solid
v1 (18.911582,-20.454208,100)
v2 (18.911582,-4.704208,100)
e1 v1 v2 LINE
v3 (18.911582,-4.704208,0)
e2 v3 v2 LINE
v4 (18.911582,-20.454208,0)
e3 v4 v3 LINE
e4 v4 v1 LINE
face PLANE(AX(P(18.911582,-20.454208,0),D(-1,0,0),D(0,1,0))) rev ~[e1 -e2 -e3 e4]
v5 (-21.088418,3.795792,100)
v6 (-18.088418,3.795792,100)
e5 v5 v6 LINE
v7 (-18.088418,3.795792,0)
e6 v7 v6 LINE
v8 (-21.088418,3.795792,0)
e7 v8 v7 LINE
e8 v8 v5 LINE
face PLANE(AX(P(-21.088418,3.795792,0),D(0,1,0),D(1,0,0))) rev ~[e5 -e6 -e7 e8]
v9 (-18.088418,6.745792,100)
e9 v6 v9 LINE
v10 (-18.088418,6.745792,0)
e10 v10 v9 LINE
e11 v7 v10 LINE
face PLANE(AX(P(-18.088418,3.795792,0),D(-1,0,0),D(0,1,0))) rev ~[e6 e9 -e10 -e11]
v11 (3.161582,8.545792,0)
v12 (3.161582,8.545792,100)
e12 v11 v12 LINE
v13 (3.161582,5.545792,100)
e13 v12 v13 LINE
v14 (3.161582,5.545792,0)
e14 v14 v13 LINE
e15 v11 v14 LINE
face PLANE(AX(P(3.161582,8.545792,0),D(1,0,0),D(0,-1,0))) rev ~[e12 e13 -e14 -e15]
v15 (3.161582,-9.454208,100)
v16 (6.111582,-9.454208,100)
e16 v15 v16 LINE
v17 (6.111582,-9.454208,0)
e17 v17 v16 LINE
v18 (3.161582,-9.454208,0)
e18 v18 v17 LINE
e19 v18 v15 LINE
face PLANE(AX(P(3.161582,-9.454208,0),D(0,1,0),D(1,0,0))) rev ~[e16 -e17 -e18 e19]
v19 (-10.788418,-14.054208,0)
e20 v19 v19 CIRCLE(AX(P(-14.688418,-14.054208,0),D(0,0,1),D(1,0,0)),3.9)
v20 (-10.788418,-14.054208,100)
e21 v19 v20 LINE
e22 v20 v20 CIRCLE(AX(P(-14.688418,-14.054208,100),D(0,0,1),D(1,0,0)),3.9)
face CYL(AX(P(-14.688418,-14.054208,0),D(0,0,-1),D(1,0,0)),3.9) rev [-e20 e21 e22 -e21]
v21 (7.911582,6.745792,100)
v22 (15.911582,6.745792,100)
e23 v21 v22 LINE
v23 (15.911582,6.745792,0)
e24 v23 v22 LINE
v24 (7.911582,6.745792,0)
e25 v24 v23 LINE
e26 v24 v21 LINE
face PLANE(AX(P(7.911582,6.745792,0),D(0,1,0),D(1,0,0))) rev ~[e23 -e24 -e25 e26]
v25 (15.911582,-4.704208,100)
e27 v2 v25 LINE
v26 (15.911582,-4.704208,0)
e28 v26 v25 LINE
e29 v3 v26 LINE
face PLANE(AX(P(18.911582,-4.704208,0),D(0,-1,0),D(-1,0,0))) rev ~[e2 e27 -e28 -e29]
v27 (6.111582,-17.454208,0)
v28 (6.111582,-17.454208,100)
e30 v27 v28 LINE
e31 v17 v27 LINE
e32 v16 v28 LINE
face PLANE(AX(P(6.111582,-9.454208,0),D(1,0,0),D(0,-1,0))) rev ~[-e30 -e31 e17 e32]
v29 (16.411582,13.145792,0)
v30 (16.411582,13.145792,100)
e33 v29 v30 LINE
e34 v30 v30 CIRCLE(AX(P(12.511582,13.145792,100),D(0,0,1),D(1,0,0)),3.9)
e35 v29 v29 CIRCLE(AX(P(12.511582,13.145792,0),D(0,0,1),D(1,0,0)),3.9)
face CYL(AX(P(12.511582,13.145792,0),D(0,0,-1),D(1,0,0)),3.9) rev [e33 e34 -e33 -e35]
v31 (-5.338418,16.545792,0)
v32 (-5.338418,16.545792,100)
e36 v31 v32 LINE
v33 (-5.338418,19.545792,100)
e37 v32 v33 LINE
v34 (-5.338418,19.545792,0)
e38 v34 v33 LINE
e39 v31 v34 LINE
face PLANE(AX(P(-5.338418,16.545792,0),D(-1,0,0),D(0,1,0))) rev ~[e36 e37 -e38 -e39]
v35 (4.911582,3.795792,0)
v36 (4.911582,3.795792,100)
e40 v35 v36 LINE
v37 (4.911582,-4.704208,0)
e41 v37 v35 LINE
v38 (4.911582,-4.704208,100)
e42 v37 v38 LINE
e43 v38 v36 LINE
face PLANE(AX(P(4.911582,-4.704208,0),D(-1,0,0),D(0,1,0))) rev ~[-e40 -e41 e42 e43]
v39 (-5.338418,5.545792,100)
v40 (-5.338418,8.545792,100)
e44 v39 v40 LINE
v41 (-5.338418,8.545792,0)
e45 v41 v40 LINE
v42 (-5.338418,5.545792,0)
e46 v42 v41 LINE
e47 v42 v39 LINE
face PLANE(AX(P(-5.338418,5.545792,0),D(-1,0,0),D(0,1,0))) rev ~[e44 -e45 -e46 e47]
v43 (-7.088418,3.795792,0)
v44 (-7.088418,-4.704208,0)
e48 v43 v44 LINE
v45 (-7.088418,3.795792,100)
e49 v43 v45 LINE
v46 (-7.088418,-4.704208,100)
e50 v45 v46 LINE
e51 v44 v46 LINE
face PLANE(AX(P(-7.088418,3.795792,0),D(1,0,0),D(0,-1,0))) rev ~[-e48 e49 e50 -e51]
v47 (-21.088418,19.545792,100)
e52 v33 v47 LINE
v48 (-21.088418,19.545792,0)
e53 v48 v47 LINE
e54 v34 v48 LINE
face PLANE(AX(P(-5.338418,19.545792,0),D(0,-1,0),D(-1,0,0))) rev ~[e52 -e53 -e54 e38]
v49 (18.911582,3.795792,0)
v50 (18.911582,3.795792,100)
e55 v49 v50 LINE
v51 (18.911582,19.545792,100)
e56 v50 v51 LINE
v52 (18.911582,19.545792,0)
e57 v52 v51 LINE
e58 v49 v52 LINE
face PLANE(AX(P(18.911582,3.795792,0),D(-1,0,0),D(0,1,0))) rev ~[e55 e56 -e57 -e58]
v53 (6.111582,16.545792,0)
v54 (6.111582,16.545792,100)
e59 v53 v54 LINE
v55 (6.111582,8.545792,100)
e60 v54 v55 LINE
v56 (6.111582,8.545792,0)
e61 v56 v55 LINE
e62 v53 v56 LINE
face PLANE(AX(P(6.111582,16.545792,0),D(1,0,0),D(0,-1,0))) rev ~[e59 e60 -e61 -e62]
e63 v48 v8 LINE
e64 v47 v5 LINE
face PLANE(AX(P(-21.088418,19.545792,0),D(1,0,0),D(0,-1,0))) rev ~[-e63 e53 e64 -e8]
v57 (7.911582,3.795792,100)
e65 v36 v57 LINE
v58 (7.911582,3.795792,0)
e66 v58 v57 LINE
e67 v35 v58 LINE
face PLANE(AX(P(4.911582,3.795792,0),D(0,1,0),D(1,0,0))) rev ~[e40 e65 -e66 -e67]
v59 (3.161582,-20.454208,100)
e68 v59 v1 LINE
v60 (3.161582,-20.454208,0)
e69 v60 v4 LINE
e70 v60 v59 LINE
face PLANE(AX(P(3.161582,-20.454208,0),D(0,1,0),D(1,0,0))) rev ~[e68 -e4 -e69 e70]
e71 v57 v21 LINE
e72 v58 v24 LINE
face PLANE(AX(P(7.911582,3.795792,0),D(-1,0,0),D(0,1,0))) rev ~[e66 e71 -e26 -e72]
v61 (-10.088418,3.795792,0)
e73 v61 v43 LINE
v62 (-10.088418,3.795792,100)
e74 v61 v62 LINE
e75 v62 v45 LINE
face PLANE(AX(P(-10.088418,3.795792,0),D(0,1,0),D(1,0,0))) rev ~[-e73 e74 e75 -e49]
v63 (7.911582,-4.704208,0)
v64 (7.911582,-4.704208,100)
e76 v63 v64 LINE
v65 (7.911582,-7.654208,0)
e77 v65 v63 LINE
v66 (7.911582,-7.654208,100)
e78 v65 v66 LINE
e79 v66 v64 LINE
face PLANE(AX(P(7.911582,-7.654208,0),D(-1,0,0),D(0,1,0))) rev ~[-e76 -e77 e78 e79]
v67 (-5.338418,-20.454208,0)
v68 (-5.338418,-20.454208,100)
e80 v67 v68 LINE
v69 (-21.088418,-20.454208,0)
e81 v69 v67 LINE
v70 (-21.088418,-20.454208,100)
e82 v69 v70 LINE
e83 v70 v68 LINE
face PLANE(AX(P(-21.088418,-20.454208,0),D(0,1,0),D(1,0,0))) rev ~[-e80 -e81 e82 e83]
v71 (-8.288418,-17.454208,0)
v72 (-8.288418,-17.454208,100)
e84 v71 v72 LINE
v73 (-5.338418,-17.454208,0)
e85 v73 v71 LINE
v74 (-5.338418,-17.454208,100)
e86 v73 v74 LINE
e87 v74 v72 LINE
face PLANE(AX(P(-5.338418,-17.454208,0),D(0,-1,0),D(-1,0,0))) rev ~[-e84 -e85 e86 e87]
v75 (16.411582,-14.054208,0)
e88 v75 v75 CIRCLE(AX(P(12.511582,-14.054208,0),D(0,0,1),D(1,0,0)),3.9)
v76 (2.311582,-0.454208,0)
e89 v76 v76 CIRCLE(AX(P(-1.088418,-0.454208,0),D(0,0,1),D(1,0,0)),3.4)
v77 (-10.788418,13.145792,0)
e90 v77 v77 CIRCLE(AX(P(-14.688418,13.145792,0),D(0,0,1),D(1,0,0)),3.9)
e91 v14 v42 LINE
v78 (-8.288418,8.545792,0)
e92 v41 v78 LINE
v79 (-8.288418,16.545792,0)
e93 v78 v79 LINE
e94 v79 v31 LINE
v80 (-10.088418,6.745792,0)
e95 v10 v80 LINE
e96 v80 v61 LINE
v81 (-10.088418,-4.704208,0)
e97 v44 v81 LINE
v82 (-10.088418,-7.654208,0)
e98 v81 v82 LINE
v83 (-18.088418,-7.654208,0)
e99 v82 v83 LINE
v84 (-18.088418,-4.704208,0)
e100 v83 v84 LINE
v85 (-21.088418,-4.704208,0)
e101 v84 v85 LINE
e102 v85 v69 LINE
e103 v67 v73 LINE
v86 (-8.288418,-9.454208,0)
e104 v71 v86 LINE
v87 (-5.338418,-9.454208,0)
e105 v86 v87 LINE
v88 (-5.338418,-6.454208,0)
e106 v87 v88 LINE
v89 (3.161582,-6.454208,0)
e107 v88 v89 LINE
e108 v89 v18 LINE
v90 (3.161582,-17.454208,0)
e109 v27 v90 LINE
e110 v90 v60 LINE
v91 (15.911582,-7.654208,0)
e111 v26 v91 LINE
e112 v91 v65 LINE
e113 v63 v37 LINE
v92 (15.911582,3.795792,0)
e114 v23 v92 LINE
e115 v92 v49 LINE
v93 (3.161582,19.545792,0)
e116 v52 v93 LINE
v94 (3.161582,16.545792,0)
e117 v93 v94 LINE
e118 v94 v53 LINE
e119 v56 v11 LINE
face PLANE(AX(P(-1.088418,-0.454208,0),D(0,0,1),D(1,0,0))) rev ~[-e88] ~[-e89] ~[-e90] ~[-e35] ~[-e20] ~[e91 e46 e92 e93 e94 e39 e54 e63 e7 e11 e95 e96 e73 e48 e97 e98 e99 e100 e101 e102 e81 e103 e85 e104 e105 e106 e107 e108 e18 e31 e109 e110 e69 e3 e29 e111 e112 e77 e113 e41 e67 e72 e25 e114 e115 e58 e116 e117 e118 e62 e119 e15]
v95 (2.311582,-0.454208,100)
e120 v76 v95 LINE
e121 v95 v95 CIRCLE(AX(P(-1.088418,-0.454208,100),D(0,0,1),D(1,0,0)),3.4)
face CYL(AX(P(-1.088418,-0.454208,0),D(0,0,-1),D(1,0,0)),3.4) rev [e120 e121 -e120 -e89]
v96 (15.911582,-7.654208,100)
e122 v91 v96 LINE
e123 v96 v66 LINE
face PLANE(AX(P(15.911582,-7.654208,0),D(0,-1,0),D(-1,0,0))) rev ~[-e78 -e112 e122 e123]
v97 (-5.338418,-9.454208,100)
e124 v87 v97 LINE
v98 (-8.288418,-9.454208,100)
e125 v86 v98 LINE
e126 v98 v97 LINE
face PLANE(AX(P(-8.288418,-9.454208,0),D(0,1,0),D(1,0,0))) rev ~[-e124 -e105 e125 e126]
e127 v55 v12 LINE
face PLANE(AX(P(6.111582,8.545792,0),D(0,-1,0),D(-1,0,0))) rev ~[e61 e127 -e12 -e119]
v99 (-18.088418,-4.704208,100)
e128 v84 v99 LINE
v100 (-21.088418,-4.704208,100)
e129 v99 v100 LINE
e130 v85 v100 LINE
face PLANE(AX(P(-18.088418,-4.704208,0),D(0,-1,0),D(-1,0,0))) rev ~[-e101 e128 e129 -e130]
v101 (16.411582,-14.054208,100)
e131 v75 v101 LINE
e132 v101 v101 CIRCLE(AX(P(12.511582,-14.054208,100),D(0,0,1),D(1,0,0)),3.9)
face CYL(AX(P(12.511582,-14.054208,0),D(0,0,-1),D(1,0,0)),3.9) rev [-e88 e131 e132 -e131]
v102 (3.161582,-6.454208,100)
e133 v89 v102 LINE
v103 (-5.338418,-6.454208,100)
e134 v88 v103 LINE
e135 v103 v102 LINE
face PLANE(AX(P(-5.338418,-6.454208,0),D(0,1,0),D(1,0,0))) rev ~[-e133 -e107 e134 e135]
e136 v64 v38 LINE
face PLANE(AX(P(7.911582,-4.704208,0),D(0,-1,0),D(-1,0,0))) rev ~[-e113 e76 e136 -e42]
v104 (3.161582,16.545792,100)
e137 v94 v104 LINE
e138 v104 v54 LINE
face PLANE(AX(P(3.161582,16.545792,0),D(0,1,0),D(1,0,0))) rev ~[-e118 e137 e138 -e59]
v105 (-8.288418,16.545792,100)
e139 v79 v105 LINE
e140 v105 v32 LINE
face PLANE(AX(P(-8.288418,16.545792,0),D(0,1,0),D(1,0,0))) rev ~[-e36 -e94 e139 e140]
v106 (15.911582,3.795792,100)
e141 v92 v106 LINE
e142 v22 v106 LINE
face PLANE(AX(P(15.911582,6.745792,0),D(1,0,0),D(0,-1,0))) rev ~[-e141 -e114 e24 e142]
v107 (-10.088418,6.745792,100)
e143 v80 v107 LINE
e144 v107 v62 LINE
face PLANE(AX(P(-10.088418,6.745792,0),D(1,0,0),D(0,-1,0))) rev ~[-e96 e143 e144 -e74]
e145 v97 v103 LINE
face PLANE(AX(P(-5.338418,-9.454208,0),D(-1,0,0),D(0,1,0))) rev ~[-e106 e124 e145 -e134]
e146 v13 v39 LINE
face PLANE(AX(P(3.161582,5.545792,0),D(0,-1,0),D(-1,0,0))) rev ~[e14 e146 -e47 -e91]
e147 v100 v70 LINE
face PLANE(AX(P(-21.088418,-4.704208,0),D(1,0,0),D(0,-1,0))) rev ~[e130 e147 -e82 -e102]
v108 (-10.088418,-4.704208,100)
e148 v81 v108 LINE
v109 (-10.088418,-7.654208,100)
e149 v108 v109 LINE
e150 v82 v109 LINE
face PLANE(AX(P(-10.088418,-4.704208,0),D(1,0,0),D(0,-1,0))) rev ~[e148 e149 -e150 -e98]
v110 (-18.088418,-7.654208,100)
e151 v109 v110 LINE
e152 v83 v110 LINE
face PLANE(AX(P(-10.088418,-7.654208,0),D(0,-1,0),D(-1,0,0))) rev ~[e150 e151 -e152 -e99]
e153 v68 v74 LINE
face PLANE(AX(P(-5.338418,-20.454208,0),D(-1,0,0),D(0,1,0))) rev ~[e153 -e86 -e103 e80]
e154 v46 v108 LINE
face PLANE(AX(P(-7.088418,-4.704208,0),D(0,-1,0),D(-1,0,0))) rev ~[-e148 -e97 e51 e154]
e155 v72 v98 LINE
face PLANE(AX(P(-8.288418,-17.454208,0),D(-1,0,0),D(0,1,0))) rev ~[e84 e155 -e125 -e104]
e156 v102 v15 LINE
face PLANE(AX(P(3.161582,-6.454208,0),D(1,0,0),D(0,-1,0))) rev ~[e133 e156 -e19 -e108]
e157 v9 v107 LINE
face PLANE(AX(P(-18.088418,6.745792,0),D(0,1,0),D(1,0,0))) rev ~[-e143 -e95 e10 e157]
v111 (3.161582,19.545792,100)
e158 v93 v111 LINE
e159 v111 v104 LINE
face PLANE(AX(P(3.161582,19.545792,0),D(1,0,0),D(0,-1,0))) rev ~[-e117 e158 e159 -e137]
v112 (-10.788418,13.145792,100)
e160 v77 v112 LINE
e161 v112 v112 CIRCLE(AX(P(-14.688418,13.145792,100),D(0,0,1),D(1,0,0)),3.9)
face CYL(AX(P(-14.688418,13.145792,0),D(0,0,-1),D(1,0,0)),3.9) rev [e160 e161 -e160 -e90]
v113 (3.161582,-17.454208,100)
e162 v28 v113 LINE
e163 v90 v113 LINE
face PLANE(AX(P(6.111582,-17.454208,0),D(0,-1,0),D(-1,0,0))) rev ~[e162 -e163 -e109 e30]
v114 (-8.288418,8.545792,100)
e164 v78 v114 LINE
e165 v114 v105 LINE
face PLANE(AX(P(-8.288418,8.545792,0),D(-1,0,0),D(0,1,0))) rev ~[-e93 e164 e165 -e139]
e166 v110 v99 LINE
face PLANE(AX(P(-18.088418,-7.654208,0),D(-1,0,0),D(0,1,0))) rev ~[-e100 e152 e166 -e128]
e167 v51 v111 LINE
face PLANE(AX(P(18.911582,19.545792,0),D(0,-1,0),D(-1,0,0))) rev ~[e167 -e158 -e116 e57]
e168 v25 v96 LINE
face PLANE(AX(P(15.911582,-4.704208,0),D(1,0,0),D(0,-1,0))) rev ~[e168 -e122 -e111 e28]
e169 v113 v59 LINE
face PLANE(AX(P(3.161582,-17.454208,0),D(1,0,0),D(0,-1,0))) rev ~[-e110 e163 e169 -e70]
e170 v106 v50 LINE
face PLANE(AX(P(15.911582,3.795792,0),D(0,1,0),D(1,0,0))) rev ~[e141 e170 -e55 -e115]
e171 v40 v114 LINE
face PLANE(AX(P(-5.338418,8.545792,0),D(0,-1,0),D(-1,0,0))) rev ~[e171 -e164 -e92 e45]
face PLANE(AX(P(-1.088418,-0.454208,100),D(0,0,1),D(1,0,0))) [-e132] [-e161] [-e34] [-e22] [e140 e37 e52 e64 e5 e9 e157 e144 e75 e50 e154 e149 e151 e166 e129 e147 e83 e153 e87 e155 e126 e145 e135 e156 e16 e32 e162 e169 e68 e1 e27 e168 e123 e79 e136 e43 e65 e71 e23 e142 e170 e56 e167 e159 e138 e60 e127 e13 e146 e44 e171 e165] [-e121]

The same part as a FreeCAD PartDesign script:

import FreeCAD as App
import Part
import Sketcher
from FreeCAD import Vector
Q = App.Units.Quantity


def add_polygon(sketch, points):
    """Adds a closed chain of lines whose ends are joined by coincident constraints."""
    first, n = sketch.GeometryCount, len(points)
    for a, b in zip(points, points[1:] + points[:1]):
        sketch.addGeometry(Part.LineSegment(App.Vector(*a, 0), App.Vector(*b, 0)), False)
    for i in range(n):
        sketch.addConstraint(Sketcher.Constraint("Coincident", first + i, 2, first + (i + 1) % n, 1))

doc = App.newDocument("Part")
body = doc.addObject("PartDesign::Body", "Body")

# Sketch on XY plane
sketch1 = doc.addObject("Sketcher::SketchObject", "Sketch")
body.addObject(sketch1)
sketch1.AttachmentSupport = (doc.XY_Plane, [""])
sketch1.MapMode = "FlatFace"
add_polygon(sketch1, [(-5.3, 19.5), (-21.1, 19.5), (-21.1, 3.8), (-18.1, 3.8), (-18.1, 6.7), (-10.1, 6.7), (-10.1, 3.8), (-7.1, 3.8), (-7.1, -4.7), (-10.1, -4.7), (-10.1, -7.7), (-18.1, -7.7), (-18.1, -4.7), (-21.1, -4.7), (-21.1, -20.5), (-5.3, -20.5), (-5.3, -17.5), (-8.3, -17.5), (-8.3, -9.5), (-5.3, -9.5), (-5.3, -6.5), (3.2, -6.5), (3.2, -9.5), (6.1, -9.5), (6.1, -17.5), (3.2, -17.5), (3.2, -20.5), (18.9, -20.5), (18.9, -4.7), (15.9, -4.7), (15.9, -7.7), (7.9, -7.7), (7.9, -4.7), (4.9, -4.7), (4.9, 3.8), (7.9, 3.8), (7.9, 6.7), (15.9, 6.7), (15.9, 3.8), (18.9, 3.8), (18.9, 19.5), (3.2, 19.5), (3.2, 16.5), (6.1, 16.5), (6.1, 8.5), (3.2, 8.5), (3.2, 5.5), (-5.3, 5.5), (-5.3, 8.5), (-8.3, 8.5), (-8.3, 16.5), (-5.3, 16.5)])  # lines 0-51
sketch1.addGeometry(Part.Circle(Vector(-14.7, -14.1, 0), Vector(0, 0, 1), 3.9), False)  # 52
sketch1.addGeometry(Part.Circle(Vector(12.5, -14.1, 0), Vector(0, 0, 1), 3.9), False)  # 53
sketch1.addGeometry(Part.Circle(Vector(-14.7, 13.1, 0), Vector(0, 0, 1), 3.9), False)  # 54
sketch1.addGeometry(Part.Circle(Vector(-1.1, -0.5, 0), Vector(0, 0, 1), 3.4), False)  # 55
sketch1.addGeometry(Part.Circle(Vector(12.5, 13.1, 0), Vector(0, 0, 1), 3.9), False)  # 56
sketch1.addConstraint(Sketcher.Constraint("Horizontal", 0))
sketch1.addConstraint(Sketcher.Constraint("Vertical", 1))
sketch1.addConstraint(Sketcher.Constraint("Horizontal", 2))
sketch1.addConstraint(Sketcher.Constraint("Vertical", 3))
sketch1.addConstraint(Sketcher.Constraint("Horizontal", 4))
sketch1.addConstraint(Sketcher.Constraint("Vertical", 5))
sketch1.addConstraint(Sketcher.Constraint("Horizontal", 6))
sketch1.addConstraint(Sketcher.Constraint("Vertical", 7))
sketch1.addConstraint(Sketcher.Constraint("Horizontal", 8))
sketch1.addConstraint(Sketcher.Constraint("Vertical", 9))
sketch1.addConstraint(Sketcher.Constraint("Horizontal", 10))
sketch1.addConstraint(Sketcher.Constraint("Vertical", 11))
sketch1.addConstraint(Sketcher.Constraint("Horizontal", 12))
sketch1.addConstraint(Sketcher.Constraint("Vertical", 13))
sketch1.addConstraint(Sketcher.Constraint("Horizontal", 14))
sketch1.addConstraint(Sketcher.Constraint("Vertical", 15))
sketch1.addConstraint(Sketcher.Constraint("Horizontal", 16))
sketch1.addConstraint(Sketcher.Constraint("Vertical", 17))
sketch1.addConstraint(Sketcher.Constraint("Horizontal", 18))
sketch1.addConstraint(Sketcher.Constraint("Vertical", 19))
sketch1.addConstraint(Sketcher.Constraint("Horizontal", 20))
sketch1.addConstraint(Sketcher.Constraint("Vertical", 21))
sketch1.addConstraint(Sketcher.Constraint("Horizontal", 22))
sketch1.addConstraint(Sketcher.Constraint("Vertical", 23))
sketch1.addConstraint(Sketcher.Constraint("Horizontal", 24))
sketch1.addConstraint(Sketcher.Constraint("Vertical", 25))
sketch1.addConstraint(Sketcher.Constraint("Horizontal", 26))
sketch1.addConstraint(Sketcher.Constraint("Vertical", 27))
sketch1.addConstraint(Sketcher.Constraint("Horizontal", 28))
sketch1.addConstraint(Sketcher.Constraint("Vertical", 29))
sketch1.addConstraint(Sketcher.Constraint("Horizontal", 30))
sketch1.addConstraint(Sketcher.Constraint("Vertical", 31))
sketch1.addConstraint(Sketcher.Constraint("Horizontal", 32))
sketch1.addConstraint(Sketcher.Constraint("Vertical", 33))
sketch1.addConstraint(Sketcher.Constraint("Horizontal", 34))
sketch1.addConstraint(Sketcher.Constraint("Vertical", 35))
sketch1.addConstraint(Sketcher.Constraint("Horizontal", 36))
sketch1.addConstraint(Sketcher.Constraint("Vertical", 37))
sketch1.addConstraint(Sketcher.Constraint("Horizontal", 38))
sketch1.addConstraint(Sketcher.Constraint("Vertical", 39))
sketch1.addConstraint(Sketcher.Constraint("Horizontal", 40))
sketch1.addConstraint(Sketcher.Constraint("Vertical", 41))
sketch1.addConstraint(Sketcher.Constraint("Horizontal", 42))
sketch1.addConstraint(Sketcher.Constraint("Vertical", 43))
sketch1.addConstraint(Sketcher.Constraint("Horizontal", 44))
sketch1.addConstraint(Sketcher.Constraint("Vertical", 45))
sketch1.addConstraint(Sketcher.Constraint("Horizontal", 46))
sketch1.addConstraint(Sketcher.Constraint("Vertical", 47))
sketch1.addConstraint(Sketcher.Constraint("Horizontal", 48))
sketch1.addConstraint(Sketcher.Constraint("Vertical", 49))
sketch1.addConstraint(Sketcher.Constraint("Horizontal", 50))
sketch1.addConstraint(Sketcher.Constraint("Vertical", 51))
sketch1.addConstraint(Sketcher.Constraint("Equal", 52, 53))
sketch1.addConstraint(Sketcher.Constraint("Equal", 53, 54))
sketch1.addConstraint(Sketcher.Constraint("Equal", 54, 56))
sketch1.addConstraint(Sketcher.Constraint("Horizontal", 52, 3, 53, 3))
sketch1.addConstraint(Sketcher.Constraint("Horizontal", 54, 3, 56, 3))
sketch1.addConstraint(Sketcher.Constraint("Horizontal", 2, 2, 5, 2))
sketch1.addConstraint(Sketcher.Constraint("Horizontal", 8, 2, 11, 2))
sketch1.addConstraint(Sketcher.Constraint("Horizontal", 18, 2, 21, 2))
sketch1.addConstraint(Sketcher.Constraint("Horizontal", 16, 2, 23, 2))
sketch1.addConstraint(Sketcher.Constraint("Horizontal", 14, 2, 25, 2))
sketch1.addConstraint(Sketcher.Constraint("Horizontal", 12, 2, 27, 2))
sketch1.addConstraint(Sketcher.Constraint("Horizontal", 10, 2, 29, 2))
sketch1.addConstraint(Sketcher.Constraint("Horizontal", 28, 2, 31, 2))
sketch1.addConstraint(Sketcher.Constraint("Horizontal", 6, 2, 33, 2))
sketch1.addConstraint(Sketcher.Constraint("Horizontal", 4, 2, 35, 2))
sketch1.addConstraint(Sketcher.Constraint("Horizontal", 34, 2, 37, 2))
sketch1.addConstraint(Sketcher.Constraint("Horizontal", 0, 2, 39, 2))
sketch1.addConstraint(Sketcher.Constraint("Horizontal", 44, 2, 47, 2))
sketch1.addConstraint(Sketcher.Constraint("Horizontal", 42, 2, 49, 2))
sketch1.addConstraint(Sketcher.Constraint("Vertical", 52, 3, 54, 3))
sketch1.addConstraint(Sketcher.Constraint("Vertical", 53, 3, 56, 3))
sketch1.addConstraint(Sketcher.Constraint("Vertical", 5, 2, 8, 2))
sketch1.addConstraint(Sketcher.Constraint("Vertical", 3, 2, 10, 2))
sketch1.addConstraint(Sketcher.Constraint("Vertical", 1, 2, 12, 2))
sketch1.addConstraint(Sketcher.Constraint("Vertical", 15, 2, 18, 2))
sketch1.addConstraint(Sketcher.Constraint("Vertical", 21, 2, 24, 2))
sketch1.addConstraint(Sketcher.Constraint("Vertical", 31, 2, 34, 2))
sketch1.addConstraint(Sketcher.Constraint("Vertical", 29, 2, 36, 2))
sketch1.addConstraint(Sketcher.Constraint("Vertical", 27, 2, 38, 2))
sketch1.addConstraint(Sketcher.Constraint("Vertical", 25, 2, 40, 2))
sketch1.addConstraint(Sketcher.Constraint("Vertical", 23, 2, 42, 2))
sketch1.addConstraint(Sketcher.Constraint("Vertical", 41, 2, 44, 2))
sketch1.addConstraint(Sketcher.Constraint("Vertical", 19, 2, 46, 2))
sketch1.addConstraint(Sketcher.Constraint("Vertical", 17, 2, 48, 2))
sketch1.addConstraint(Sketcher.Constraint("Vertical", 47, 2, 50, 2))
sketch1.addConstraint(Sketcher.Constraint("Equal", 2, 6))
sketch1.addConstraint(Sketcher.Constraint("Equal", 18, 22))
sketch1.addConstraint(Sketcher.Constraint("Equal", 14, 26))
sketch1.addConstraint(Sketcher.Constraint("Equal", 12, 28))
sketch1.addConstraint(Sketcher.Constraint("Equal", 10, 30))
sketch1.addConstraint(Sketcher.Constraint("Equal", 28, 32))
sketch1.addConstraint(Sketcher.Constraint("Equal", 40, 1))
sketch1.addConstraint(Sketcher.Constraint("Equal", 50, 3))
sketch1.addConstraint(Sketcher.Constraint("Equal", 46, 7))
sketch1.addConstraint(Sketcher.Constraint("Equal", 5, 9))
sketch1.addConstraint(Sketcher.Constraint("Equal", 1, 13))
sketch1.addConstraint(Sketcher.Constraint("Equal", 38, 15))
sketch1.addConstraint(Sketcher.Constraint("Equal", 36, 17))
sketch1.addConstraint(Sketcher.Constraint("Equal", 15, 19))
sketch1.addConstraint(Sketcher.Constraint("Equal", 25, 41))
sketch1.addConstraint(Sketcher.Constraint("Equal", 23, 43))
sketch1.addConstraint(Sketcher.Constraint("Equal", 41, 45))
sketch1.addConstraint(Sketcher.Constraint("Diameter", 52, Q("7.8 mm")))
sketch1.addConstraint(Sketcher.Constraint("Diameter", 55, Q("6.8 mm")))
sketch1.addConstraint(Sketcher.Constraint("DistanceX", 2, 1, 2, 2, Q("3 mm")))
sketch1.addConstraint(Sketcher.Constraint("DistanceX", 4, 1, 4, 2, Q("8 mm")))
sketch1.addConstraint(Sketcher.Constraint("DistanceX", 20, 1, 20, 2, Q("8.5 mm")))
sketch1.addConstraint(Sketcher.Constraint("DistanceX", 0, 2, 55, 3, Q("20 mm")))
sketch1.addConstraint(Sketcher.Constraint("DistanceY", 55, 3, 0, 2, Q("20 mm")))
sketch1.addConstraint(Sketcher.Constraint("DistanceY", 20, 2, 55, 3, Q("6 mm")))
sketch1.addConstraint(Sketcher.Constraint("DistanceX", 16, 2, 16, 1, Q("2.95 mm")))
sketch1.addConstraint(Sketcher.Constraint("DistanceX", 52, 3, 53, 3, Q("27.2 mm")))
sketch1.addConstraint(Sketcher.Constraint("DistanceY", 52, 3, 54, 3, Q("27.2 mm")))
sketch1.addConstraint(Sketcher.Constraint("DistanceX", 52, 3, 55, 3, Q("13.6 mm")))
sketch1.addConstraint(Sketcher.Constraint("DistanceY", 52, 3, 55, 3, Q("13.6 mm")))
sketch1.addConstraint(Sketcher.Constraint("DistanceX", 52, 3, -1, 1, Q("14.688418 mm")))
sketch1.addConstraint(Sketcher.Constraint("DistanceY", 52, 3, -1, 1, Q("14.054208 mm")))
pad1 = doc.addObject("PartDesign::Pad", "Pad")
body.addObject(pad1)
pad1.Profile = sketch1
pad1.Length = 100

doc.recompute()
